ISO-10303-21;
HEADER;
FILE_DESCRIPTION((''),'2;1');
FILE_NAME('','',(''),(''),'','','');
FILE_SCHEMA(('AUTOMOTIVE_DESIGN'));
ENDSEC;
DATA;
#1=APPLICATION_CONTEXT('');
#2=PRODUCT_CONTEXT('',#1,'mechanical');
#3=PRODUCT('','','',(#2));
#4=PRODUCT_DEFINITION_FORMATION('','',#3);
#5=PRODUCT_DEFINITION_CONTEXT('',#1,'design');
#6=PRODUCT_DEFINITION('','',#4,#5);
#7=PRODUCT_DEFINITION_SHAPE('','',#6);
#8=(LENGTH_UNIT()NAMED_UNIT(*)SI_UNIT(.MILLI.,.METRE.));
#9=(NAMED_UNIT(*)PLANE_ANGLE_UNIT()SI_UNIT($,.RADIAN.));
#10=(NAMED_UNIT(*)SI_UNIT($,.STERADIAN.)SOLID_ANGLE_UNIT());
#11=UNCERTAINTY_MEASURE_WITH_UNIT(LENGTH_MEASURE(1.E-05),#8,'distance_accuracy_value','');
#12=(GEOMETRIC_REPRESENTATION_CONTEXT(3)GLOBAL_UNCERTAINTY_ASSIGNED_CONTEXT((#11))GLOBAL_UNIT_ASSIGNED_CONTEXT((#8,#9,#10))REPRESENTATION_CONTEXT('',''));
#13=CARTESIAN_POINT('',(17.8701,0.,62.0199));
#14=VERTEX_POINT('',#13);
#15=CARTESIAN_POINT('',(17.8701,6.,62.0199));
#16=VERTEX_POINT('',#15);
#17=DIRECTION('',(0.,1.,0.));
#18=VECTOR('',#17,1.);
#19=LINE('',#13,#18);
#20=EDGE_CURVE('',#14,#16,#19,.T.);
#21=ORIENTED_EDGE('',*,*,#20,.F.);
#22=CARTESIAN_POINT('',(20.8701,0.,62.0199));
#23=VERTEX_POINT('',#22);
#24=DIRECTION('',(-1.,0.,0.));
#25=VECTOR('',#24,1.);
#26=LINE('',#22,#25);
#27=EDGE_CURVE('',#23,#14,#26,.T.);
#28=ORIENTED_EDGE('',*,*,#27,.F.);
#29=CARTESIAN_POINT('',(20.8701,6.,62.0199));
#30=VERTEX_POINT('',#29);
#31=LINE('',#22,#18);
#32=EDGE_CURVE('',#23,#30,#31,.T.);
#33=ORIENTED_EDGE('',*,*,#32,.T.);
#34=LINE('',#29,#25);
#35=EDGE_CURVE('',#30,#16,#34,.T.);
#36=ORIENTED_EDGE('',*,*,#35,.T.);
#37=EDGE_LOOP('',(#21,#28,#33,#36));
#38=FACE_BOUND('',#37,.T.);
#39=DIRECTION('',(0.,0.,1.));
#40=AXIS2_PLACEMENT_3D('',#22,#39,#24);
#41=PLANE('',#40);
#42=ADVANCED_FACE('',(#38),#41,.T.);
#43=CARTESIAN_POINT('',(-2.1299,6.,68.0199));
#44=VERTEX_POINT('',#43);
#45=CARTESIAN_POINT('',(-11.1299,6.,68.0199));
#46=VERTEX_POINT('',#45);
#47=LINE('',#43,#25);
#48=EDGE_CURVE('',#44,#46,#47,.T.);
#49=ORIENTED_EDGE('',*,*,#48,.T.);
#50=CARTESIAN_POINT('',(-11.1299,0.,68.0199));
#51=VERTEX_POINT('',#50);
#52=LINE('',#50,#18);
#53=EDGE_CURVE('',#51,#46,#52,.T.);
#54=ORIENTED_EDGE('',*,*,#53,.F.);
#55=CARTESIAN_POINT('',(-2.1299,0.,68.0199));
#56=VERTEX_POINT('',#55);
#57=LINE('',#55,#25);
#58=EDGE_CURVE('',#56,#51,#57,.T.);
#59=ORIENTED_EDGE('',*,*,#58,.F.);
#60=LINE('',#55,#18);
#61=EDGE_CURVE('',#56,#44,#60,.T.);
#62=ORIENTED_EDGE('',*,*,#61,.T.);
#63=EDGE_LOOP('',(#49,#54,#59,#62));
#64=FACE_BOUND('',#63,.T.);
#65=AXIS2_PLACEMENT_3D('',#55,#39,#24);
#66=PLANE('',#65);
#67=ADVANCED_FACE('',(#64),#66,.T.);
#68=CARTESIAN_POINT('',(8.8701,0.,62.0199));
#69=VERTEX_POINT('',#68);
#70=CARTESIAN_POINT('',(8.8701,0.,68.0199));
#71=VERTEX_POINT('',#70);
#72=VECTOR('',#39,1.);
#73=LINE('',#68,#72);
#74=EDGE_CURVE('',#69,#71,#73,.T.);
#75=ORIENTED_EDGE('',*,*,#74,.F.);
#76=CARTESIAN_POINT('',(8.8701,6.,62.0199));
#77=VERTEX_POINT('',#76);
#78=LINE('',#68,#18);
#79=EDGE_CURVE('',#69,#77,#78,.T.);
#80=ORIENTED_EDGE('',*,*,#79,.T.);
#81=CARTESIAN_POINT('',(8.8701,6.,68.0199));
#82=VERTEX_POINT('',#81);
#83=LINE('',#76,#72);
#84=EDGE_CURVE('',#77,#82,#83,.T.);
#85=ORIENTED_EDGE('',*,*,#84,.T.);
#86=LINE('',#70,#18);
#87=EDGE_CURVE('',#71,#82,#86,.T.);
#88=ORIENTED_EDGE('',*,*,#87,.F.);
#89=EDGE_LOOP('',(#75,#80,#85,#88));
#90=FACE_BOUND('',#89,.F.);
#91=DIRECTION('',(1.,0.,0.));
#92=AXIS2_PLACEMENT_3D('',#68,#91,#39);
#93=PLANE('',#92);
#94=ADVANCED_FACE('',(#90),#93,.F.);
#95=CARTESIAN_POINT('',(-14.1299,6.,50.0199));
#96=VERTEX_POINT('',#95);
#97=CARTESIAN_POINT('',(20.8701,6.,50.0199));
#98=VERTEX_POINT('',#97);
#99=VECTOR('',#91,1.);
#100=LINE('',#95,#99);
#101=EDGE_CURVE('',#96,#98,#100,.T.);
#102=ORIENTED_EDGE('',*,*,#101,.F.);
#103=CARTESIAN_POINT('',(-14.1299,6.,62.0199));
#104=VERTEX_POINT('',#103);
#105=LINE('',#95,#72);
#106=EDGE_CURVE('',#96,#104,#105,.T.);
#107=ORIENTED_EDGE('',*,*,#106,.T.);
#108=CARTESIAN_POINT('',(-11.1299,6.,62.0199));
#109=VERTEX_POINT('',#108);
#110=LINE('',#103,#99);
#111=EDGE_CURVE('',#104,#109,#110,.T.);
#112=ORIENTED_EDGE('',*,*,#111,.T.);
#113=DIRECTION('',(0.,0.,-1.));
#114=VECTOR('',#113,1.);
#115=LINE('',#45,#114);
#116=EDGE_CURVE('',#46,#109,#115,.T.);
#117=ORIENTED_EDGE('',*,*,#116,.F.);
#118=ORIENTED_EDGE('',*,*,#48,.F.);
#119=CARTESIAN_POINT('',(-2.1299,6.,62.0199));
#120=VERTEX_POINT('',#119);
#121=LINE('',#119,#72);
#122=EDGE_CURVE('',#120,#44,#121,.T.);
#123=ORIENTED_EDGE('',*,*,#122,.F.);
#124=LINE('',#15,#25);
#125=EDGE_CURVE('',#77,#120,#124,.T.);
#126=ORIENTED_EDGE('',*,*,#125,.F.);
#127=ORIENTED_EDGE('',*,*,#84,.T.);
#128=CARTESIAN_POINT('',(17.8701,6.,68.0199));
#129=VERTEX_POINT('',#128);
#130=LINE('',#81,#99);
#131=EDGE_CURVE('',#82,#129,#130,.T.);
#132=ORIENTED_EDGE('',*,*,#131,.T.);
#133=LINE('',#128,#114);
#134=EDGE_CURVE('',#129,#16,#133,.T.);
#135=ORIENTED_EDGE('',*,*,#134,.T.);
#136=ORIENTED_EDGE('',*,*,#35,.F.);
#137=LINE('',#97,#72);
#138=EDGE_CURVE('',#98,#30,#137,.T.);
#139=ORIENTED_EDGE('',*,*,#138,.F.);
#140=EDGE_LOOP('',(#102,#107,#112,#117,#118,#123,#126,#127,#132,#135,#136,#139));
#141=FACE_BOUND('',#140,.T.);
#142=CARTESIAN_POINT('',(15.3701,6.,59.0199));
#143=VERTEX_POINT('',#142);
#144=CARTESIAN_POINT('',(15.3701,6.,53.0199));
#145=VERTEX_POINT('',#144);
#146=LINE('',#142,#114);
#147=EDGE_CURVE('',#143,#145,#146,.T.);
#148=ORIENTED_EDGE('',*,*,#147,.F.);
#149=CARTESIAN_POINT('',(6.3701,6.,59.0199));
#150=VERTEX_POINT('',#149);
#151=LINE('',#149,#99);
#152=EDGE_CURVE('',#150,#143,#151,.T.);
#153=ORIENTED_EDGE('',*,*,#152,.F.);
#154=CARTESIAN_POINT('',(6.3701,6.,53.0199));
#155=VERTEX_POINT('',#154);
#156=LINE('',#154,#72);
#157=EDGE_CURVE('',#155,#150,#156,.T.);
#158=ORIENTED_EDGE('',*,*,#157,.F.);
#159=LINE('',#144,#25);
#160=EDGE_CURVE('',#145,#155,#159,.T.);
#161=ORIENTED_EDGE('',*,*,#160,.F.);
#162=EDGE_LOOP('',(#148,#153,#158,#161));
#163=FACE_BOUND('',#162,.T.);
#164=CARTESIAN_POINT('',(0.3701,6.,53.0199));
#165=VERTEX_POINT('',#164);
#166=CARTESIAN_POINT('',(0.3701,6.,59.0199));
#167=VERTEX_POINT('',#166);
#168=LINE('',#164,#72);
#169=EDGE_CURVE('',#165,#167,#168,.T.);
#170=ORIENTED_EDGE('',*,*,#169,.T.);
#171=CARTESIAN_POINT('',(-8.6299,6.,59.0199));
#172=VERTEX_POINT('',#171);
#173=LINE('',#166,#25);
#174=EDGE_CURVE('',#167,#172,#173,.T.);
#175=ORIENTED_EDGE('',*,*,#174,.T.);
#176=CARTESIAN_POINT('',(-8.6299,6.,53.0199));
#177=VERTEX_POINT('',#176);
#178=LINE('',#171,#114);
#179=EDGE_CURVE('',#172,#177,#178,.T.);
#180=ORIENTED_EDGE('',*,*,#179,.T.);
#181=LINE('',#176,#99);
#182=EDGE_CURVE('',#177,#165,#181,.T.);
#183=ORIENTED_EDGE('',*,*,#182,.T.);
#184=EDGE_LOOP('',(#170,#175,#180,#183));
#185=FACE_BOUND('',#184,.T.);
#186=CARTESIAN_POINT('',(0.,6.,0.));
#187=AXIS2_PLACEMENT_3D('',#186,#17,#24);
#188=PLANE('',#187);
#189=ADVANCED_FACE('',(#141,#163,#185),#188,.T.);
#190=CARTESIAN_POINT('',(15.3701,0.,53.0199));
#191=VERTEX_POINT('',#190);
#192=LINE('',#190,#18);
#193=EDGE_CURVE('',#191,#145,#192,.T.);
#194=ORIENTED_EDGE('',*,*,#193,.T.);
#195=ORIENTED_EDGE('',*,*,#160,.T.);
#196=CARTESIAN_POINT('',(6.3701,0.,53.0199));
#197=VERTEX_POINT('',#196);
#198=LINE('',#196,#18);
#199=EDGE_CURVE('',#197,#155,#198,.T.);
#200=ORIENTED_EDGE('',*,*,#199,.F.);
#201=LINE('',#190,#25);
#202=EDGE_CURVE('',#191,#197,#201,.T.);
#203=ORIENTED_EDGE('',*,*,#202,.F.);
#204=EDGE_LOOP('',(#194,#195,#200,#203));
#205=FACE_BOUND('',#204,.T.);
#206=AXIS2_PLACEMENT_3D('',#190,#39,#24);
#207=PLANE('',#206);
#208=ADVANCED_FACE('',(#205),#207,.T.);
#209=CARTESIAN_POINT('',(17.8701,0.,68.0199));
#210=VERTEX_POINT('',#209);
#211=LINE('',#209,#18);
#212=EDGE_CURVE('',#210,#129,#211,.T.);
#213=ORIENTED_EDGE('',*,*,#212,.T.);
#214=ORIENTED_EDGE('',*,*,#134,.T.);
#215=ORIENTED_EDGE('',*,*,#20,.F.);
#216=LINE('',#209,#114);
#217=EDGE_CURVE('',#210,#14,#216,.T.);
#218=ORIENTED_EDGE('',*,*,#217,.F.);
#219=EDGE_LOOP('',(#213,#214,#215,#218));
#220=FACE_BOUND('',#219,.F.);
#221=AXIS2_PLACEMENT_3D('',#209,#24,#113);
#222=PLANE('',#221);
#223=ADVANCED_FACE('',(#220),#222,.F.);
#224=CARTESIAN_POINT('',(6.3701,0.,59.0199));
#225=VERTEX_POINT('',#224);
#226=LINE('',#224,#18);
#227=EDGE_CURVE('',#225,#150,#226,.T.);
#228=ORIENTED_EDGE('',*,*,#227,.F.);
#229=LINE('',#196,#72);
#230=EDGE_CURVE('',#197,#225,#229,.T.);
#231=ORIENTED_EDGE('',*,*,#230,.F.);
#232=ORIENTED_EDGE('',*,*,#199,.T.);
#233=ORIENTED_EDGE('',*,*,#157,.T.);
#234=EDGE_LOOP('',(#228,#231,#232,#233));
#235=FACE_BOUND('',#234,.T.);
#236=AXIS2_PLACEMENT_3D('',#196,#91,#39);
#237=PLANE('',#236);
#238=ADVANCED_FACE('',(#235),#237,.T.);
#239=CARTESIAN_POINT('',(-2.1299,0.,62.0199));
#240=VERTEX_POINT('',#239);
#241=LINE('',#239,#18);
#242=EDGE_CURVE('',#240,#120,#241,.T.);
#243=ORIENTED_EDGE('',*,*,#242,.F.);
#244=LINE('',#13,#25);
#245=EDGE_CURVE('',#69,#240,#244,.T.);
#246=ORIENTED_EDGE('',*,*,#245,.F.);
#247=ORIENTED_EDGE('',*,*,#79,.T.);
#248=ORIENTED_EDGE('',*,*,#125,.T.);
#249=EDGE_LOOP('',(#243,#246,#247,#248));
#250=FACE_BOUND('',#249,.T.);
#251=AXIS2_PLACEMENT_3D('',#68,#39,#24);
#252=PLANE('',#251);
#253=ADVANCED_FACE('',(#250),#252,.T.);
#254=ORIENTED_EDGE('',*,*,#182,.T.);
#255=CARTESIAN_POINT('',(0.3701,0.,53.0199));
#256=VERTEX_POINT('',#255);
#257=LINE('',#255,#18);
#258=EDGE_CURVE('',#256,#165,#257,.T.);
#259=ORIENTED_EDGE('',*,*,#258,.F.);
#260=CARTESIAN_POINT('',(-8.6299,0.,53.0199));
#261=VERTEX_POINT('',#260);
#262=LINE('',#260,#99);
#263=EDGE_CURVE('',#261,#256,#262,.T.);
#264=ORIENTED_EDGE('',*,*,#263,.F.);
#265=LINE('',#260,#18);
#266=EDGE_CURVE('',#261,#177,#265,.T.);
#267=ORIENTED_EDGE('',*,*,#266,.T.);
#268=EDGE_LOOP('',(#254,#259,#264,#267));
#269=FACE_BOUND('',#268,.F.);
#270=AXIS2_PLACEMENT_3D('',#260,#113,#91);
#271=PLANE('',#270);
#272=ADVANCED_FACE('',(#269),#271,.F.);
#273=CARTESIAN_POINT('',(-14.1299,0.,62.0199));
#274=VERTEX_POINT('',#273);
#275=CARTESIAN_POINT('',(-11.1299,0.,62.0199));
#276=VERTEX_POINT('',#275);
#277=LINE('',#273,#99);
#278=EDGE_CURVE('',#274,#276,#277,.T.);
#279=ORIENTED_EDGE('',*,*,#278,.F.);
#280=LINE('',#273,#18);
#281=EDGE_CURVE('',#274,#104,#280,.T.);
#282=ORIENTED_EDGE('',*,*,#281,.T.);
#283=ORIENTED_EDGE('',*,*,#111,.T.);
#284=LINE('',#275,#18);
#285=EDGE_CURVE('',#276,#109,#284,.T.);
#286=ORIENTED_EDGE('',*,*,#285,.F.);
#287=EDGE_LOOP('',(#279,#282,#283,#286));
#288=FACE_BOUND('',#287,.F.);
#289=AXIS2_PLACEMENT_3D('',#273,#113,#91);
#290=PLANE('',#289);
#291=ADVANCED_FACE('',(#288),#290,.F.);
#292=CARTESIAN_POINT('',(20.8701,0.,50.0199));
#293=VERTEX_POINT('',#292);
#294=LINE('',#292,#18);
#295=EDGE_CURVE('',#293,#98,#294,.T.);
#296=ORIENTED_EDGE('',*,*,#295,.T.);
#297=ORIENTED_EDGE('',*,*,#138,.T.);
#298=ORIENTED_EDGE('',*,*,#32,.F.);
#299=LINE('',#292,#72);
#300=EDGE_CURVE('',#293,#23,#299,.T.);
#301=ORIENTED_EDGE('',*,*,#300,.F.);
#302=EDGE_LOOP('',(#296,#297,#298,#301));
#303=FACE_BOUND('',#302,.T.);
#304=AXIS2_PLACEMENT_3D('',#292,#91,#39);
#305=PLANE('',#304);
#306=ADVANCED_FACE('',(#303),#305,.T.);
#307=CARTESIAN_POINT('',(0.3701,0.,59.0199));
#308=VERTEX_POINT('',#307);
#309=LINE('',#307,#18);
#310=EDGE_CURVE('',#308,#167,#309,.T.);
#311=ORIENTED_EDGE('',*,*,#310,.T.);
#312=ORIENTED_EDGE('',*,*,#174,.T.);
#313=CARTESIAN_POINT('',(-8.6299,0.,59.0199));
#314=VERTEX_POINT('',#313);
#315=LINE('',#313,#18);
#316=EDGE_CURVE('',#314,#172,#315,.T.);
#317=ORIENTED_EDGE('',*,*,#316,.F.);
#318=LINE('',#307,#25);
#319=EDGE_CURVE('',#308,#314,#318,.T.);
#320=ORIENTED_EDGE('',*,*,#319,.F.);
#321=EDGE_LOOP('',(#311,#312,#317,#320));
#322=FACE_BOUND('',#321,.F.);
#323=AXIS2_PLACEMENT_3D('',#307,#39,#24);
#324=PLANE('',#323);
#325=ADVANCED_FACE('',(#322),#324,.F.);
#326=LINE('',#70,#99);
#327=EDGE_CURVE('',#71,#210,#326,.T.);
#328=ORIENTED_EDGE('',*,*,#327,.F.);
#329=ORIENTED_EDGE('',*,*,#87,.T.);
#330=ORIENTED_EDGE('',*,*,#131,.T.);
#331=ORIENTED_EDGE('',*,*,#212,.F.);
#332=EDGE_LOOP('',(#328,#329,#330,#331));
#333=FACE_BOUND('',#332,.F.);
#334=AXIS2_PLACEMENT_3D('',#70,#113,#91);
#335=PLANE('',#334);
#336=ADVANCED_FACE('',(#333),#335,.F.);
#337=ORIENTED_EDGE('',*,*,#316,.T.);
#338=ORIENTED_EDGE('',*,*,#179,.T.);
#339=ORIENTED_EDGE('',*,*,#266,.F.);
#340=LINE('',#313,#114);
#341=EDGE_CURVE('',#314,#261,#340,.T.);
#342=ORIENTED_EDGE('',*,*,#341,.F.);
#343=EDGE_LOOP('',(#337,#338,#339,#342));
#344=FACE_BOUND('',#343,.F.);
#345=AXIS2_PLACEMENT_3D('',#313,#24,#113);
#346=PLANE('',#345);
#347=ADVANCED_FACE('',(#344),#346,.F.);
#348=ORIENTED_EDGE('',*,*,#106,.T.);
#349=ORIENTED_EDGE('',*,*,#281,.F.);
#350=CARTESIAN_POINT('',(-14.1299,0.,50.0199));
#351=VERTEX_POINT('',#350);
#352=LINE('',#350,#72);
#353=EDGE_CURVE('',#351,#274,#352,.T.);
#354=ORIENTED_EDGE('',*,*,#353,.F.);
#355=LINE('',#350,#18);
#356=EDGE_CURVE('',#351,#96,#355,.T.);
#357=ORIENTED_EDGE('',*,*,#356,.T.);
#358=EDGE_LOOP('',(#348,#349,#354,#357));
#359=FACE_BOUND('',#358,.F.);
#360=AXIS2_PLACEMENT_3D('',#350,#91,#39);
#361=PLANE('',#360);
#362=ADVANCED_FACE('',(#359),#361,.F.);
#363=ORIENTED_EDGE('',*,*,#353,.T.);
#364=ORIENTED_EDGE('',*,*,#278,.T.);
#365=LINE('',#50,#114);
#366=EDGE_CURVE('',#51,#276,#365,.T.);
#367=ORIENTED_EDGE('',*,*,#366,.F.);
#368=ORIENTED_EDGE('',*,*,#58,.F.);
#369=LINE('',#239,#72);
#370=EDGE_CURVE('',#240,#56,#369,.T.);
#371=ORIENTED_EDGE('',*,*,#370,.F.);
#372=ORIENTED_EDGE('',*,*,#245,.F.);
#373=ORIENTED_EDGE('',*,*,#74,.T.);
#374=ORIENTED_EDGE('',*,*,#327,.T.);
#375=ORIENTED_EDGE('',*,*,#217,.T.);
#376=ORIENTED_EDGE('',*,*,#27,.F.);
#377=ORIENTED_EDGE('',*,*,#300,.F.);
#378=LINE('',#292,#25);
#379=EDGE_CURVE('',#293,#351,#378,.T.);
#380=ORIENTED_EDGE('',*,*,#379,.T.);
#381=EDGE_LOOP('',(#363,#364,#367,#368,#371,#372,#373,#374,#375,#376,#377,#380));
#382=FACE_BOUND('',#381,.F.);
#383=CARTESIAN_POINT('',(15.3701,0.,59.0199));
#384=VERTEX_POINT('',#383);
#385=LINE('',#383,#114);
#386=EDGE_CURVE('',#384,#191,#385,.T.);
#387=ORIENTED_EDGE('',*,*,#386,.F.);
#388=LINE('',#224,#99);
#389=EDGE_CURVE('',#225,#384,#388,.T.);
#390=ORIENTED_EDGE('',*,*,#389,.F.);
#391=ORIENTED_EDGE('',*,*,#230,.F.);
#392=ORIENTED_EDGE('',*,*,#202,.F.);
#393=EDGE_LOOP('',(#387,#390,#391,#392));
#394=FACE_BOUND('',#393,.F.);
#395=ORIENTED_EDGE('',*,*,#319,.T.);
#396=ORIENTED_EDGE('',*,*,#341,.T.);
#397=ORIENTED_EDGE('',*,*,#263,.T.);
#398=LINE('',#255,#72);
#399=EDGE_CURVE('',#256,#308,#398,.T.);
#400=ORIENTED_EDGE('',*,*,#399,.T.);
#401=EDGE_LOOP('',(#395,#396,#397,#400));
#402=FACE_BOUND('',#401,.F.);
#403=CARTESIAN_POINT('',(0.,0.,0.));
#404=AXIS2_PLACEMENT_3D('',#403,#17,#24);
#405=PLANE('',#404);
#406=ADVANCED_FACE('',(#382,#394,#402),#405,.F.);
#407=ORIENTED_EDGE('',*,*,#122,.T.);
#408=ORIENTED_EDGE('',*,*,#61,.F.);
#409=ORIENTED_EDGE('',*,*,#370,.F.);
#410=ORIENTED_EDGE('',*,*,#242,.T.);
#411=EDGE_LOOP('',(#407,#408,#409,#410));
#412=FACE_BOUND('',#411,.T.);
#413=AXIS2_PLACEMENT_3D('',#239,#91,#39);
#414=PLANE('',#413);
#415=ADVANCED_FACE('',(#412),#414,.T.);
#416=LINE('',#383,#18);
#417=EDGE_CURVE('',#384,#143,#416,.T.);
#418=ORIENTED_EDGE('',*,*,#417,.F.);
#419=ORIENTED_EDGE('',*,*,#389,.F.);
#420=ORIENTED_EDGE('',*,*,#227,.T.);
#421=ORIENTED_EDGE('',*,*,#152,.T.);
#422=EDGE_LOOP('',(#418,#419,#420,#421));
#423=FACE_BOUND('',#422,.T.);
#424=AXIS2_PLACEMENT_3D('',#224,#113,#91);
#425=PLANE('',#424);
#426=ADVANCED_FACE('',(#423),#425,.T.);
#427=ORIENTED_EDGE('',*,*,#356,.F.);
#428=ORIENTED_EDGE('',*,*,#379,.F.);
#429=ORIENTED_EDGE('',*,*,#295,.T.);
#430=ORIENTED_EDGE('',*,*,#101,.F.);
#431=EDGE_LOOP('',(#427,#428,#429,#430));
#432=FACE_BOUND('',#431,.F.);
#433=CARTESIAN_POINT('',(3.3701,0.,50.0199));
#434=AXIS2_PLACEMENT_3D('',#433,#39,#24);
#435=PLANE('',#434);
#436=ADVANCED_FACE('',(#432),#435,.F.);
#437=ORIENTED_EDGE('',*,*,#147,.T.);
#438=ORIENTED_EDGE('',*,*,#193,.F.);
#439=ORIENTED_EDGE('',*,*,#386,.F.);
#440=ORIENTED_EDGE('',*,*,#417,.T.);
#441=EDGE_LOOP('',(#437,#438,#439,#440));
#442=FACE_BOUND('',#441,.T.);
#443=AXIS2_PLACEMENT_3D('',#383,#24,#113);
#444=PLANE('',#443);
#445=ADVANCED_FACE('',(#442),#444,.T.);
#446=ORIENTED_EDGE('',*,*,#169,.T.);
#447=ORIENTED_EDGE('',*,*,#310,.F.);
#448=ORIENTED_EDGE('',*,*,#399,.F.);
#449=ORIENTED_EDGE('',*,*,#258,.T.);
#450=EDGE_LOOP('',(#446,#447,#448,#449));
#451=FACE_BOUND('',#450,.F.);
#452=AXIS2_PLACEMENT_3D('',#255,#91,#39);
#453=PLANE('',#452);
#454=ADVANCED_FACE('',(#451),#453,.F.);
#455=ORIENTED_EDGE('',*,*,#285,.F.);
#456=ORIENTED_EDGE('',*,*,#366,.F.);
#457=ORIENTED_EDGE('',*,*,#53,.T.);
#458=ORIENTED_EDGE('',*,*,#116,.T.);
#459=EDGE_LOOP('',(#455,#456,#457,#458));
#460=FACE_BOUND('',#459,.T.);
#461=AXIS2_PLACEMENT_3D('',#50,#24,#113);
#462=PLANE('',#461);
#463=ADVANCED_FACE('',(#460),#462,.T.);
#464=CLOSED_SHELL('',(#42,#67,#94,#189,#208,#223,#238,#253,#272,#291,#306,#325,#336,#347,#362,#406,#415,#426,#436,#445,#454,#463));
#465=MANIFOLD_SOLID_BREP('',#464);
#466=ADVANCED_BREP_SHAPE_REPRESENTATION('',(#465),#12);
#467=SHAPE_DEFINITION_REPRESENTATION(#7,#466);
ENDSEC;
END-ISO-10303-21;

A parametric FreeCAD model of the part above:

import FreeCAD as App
import Part
import Sketcher

V = App.Vector
Q = App.Units.Quantity


def add_polygon(sketch, points):
    """Adds a closed chain of lines whose ends are joined by coincident constraints."""
    first, n = sketch.GeometryCount, len(points)
    for a, b in zip(points, points[1:] + points[:1]):
        sketch.addGeometry(Part.LineSegment(App.Vector(*a, 0), App.Vector(*b, 0)), False)
    for i in range(n):
        sketch.addConstraint(Sketcher.Constraint("Coincident", first + i, 2, first + (i + 1) % n, 1))

doc = App.newDocument("Part")
body = doc.addObject("PartDesign::Body", "Body")

# Sketch on XZ plane
sketch1 = doc.addObject("Sketcher::SketchObject", "Sketch")
body.addObject(sketch1)
sketch1.AttachmentSupport = (doc.XZ_Plane, [""])
sketch1.MapMode = "FlatFace"
add_polygon(sketch1, [(-14.1, 50), (-14.1, 62), (-11.1, 62), (-11.1, 68), (-2.1, 68), (-2.1, 62), (8.9, 62), (8.9, 68), (17.9, 68), (17.9, 62), (20.9, 62), (20.9, 50)])  # lines 0-11
add_polygon(sketch1, [(15.4, 59), (6.4, 59), (6.4, 53), (15.4, 53)])  # lines 12-15
add_polygon(sketch1, [(0.4, 53), (0.4, 59), (-8.6, 59), (-8.6, 53)])  # lines 16-19
sketch1.addConstraint(Sketcher.Constraint("Vertical", 0))
sketch1.addConstraint(Sketcher.Constraint("Horizontal", 1))
sketch1.addConstraint(Sketcher.Constraint("Vertical", 2))
sketch1.addConstraint(Sketcher.Constraint("Horizontal", 3))
sketch1.addConstraint(Sketcher.Constraint("Vertical", 4))
sketch1.addConstraint(Sketcher.Constraint("Horizontal", 5))
sketch1.addConstraint(Sketcher.Constraint("Vertical", 6))
sketch1.addConstraint(Sketcher.Constraint("Horizontal", 7))
sketch1.addConstraint(Sketcher.Constraint("Vertical", 8))
sketch1.addConstraint(Sketcher.Constraint("Horizontal", 9))
sketch1.addConstraint(Sketcher.Constraint("Vertical", 10))
sketch1.addConstraint(Sketcher.Constraint("Horizontal", 11))
sketch1.addConstraint(Sketcher.Constraint("Horizontal", 12))
sketch1.addConstraint(Sketcher.Constraint("Vertical", 13))
sketch1.addConstraint(Sketcher.Constraint("Horizontal", 14))
sketch1.addConstraint(Sketcher.Constraint("Vertical", 15))
sketch1.addConstraint(Sketcher.Constraint("Vertical", 16))
sketch1.addConstraint(Sketcher.Constraint("Horizontal", 17))
sketch1.addConstraint(Sketcher.Constraint("Vertical", 18))
sketch1.addConstraint(Sketcher.Constraint("Horizontal", 19))
sketch1.addConstraint(Sketcher.Constraint("Horizontal", 1, 2, 4, 2))
sketch1.addConstraint(Sketcher.Constraint("Horizontal", 3, 2, 6, 2))
sketch1.addConstraint(Sketcher.Constraint("Horizontal", 5, 2, 8, 2))
sketch1.addConstraint(Sketcher.Constraint("Horizontal", 15, 2, 16, 2))
sketch1.addConstraint(Sketcher.Constraint("Horizontal", 14, 2, 18, 2))
sketch1.addConstraint(Sketcher.Constraint("Equal", 3, 7))
sketch1.addConstraint(Sketcher.Constraint("Equal", 1, 9))
sketch1.addConstraint(Sketcher.Constraint("Equal", 7, 12))
sketch1.addConstraint(Sketcher.Constraint("Equal", 14, 17))
sketch1.addConstraint(Sketcher.Constraint("Equal", 8, 13))
sketch1.addConstraint(Sketcher.Constraint("DistanceX", 1, 1, 1, 2, Q("3 mm")))
sketch1.addConstraint(Sketcher.Constraint("DistanceX", 3, 1, 3, 2, Q("9 mm")))
sketch1.addConstraint(Sketcher.Constraint("DistanceY", 0, 1, 0, 2, Q("12 mm")))
sketch1.addConstraint(Sketcher.Constraint("DistanceY", 2, 1, 2, 2, Q("6 mm")))
sketch1.addConstraint(Sketcher.Constraint("DistanceX", 2, 2, 7, 2, Q("29 mm")))
sketch1.addConstraint(Sketcher.Constraint("DistanceY", 12, 2, 5, 2, Q("3 mm")))
sketch1.addConstraint(Sketcher.Constraint("DistanceX", 16, 2, 12, 2, Q("6 mm")))
sketch1.addConstraint(Sketcher.Constraint("DistanceX", 13, 2, 10, 2, Q("14.5 mm")))
sketch1.addConstraint(Sketcher.Constraint("DistanceX", 0, 2, -1, 1, Q("14.13 mm")))
sketch1.addConstraint(Sketcher.Constraint("DistanceY", -1, 1, 0, 2, Q("62.02 mm")))
pad1 = doc.addObject("PartDesign::Pad", "Pad")
body.addObject(pad1)
pad1.Profile = sketch1
pad1.Length = 6
pad1.Reversed = True

doc.recompute()
